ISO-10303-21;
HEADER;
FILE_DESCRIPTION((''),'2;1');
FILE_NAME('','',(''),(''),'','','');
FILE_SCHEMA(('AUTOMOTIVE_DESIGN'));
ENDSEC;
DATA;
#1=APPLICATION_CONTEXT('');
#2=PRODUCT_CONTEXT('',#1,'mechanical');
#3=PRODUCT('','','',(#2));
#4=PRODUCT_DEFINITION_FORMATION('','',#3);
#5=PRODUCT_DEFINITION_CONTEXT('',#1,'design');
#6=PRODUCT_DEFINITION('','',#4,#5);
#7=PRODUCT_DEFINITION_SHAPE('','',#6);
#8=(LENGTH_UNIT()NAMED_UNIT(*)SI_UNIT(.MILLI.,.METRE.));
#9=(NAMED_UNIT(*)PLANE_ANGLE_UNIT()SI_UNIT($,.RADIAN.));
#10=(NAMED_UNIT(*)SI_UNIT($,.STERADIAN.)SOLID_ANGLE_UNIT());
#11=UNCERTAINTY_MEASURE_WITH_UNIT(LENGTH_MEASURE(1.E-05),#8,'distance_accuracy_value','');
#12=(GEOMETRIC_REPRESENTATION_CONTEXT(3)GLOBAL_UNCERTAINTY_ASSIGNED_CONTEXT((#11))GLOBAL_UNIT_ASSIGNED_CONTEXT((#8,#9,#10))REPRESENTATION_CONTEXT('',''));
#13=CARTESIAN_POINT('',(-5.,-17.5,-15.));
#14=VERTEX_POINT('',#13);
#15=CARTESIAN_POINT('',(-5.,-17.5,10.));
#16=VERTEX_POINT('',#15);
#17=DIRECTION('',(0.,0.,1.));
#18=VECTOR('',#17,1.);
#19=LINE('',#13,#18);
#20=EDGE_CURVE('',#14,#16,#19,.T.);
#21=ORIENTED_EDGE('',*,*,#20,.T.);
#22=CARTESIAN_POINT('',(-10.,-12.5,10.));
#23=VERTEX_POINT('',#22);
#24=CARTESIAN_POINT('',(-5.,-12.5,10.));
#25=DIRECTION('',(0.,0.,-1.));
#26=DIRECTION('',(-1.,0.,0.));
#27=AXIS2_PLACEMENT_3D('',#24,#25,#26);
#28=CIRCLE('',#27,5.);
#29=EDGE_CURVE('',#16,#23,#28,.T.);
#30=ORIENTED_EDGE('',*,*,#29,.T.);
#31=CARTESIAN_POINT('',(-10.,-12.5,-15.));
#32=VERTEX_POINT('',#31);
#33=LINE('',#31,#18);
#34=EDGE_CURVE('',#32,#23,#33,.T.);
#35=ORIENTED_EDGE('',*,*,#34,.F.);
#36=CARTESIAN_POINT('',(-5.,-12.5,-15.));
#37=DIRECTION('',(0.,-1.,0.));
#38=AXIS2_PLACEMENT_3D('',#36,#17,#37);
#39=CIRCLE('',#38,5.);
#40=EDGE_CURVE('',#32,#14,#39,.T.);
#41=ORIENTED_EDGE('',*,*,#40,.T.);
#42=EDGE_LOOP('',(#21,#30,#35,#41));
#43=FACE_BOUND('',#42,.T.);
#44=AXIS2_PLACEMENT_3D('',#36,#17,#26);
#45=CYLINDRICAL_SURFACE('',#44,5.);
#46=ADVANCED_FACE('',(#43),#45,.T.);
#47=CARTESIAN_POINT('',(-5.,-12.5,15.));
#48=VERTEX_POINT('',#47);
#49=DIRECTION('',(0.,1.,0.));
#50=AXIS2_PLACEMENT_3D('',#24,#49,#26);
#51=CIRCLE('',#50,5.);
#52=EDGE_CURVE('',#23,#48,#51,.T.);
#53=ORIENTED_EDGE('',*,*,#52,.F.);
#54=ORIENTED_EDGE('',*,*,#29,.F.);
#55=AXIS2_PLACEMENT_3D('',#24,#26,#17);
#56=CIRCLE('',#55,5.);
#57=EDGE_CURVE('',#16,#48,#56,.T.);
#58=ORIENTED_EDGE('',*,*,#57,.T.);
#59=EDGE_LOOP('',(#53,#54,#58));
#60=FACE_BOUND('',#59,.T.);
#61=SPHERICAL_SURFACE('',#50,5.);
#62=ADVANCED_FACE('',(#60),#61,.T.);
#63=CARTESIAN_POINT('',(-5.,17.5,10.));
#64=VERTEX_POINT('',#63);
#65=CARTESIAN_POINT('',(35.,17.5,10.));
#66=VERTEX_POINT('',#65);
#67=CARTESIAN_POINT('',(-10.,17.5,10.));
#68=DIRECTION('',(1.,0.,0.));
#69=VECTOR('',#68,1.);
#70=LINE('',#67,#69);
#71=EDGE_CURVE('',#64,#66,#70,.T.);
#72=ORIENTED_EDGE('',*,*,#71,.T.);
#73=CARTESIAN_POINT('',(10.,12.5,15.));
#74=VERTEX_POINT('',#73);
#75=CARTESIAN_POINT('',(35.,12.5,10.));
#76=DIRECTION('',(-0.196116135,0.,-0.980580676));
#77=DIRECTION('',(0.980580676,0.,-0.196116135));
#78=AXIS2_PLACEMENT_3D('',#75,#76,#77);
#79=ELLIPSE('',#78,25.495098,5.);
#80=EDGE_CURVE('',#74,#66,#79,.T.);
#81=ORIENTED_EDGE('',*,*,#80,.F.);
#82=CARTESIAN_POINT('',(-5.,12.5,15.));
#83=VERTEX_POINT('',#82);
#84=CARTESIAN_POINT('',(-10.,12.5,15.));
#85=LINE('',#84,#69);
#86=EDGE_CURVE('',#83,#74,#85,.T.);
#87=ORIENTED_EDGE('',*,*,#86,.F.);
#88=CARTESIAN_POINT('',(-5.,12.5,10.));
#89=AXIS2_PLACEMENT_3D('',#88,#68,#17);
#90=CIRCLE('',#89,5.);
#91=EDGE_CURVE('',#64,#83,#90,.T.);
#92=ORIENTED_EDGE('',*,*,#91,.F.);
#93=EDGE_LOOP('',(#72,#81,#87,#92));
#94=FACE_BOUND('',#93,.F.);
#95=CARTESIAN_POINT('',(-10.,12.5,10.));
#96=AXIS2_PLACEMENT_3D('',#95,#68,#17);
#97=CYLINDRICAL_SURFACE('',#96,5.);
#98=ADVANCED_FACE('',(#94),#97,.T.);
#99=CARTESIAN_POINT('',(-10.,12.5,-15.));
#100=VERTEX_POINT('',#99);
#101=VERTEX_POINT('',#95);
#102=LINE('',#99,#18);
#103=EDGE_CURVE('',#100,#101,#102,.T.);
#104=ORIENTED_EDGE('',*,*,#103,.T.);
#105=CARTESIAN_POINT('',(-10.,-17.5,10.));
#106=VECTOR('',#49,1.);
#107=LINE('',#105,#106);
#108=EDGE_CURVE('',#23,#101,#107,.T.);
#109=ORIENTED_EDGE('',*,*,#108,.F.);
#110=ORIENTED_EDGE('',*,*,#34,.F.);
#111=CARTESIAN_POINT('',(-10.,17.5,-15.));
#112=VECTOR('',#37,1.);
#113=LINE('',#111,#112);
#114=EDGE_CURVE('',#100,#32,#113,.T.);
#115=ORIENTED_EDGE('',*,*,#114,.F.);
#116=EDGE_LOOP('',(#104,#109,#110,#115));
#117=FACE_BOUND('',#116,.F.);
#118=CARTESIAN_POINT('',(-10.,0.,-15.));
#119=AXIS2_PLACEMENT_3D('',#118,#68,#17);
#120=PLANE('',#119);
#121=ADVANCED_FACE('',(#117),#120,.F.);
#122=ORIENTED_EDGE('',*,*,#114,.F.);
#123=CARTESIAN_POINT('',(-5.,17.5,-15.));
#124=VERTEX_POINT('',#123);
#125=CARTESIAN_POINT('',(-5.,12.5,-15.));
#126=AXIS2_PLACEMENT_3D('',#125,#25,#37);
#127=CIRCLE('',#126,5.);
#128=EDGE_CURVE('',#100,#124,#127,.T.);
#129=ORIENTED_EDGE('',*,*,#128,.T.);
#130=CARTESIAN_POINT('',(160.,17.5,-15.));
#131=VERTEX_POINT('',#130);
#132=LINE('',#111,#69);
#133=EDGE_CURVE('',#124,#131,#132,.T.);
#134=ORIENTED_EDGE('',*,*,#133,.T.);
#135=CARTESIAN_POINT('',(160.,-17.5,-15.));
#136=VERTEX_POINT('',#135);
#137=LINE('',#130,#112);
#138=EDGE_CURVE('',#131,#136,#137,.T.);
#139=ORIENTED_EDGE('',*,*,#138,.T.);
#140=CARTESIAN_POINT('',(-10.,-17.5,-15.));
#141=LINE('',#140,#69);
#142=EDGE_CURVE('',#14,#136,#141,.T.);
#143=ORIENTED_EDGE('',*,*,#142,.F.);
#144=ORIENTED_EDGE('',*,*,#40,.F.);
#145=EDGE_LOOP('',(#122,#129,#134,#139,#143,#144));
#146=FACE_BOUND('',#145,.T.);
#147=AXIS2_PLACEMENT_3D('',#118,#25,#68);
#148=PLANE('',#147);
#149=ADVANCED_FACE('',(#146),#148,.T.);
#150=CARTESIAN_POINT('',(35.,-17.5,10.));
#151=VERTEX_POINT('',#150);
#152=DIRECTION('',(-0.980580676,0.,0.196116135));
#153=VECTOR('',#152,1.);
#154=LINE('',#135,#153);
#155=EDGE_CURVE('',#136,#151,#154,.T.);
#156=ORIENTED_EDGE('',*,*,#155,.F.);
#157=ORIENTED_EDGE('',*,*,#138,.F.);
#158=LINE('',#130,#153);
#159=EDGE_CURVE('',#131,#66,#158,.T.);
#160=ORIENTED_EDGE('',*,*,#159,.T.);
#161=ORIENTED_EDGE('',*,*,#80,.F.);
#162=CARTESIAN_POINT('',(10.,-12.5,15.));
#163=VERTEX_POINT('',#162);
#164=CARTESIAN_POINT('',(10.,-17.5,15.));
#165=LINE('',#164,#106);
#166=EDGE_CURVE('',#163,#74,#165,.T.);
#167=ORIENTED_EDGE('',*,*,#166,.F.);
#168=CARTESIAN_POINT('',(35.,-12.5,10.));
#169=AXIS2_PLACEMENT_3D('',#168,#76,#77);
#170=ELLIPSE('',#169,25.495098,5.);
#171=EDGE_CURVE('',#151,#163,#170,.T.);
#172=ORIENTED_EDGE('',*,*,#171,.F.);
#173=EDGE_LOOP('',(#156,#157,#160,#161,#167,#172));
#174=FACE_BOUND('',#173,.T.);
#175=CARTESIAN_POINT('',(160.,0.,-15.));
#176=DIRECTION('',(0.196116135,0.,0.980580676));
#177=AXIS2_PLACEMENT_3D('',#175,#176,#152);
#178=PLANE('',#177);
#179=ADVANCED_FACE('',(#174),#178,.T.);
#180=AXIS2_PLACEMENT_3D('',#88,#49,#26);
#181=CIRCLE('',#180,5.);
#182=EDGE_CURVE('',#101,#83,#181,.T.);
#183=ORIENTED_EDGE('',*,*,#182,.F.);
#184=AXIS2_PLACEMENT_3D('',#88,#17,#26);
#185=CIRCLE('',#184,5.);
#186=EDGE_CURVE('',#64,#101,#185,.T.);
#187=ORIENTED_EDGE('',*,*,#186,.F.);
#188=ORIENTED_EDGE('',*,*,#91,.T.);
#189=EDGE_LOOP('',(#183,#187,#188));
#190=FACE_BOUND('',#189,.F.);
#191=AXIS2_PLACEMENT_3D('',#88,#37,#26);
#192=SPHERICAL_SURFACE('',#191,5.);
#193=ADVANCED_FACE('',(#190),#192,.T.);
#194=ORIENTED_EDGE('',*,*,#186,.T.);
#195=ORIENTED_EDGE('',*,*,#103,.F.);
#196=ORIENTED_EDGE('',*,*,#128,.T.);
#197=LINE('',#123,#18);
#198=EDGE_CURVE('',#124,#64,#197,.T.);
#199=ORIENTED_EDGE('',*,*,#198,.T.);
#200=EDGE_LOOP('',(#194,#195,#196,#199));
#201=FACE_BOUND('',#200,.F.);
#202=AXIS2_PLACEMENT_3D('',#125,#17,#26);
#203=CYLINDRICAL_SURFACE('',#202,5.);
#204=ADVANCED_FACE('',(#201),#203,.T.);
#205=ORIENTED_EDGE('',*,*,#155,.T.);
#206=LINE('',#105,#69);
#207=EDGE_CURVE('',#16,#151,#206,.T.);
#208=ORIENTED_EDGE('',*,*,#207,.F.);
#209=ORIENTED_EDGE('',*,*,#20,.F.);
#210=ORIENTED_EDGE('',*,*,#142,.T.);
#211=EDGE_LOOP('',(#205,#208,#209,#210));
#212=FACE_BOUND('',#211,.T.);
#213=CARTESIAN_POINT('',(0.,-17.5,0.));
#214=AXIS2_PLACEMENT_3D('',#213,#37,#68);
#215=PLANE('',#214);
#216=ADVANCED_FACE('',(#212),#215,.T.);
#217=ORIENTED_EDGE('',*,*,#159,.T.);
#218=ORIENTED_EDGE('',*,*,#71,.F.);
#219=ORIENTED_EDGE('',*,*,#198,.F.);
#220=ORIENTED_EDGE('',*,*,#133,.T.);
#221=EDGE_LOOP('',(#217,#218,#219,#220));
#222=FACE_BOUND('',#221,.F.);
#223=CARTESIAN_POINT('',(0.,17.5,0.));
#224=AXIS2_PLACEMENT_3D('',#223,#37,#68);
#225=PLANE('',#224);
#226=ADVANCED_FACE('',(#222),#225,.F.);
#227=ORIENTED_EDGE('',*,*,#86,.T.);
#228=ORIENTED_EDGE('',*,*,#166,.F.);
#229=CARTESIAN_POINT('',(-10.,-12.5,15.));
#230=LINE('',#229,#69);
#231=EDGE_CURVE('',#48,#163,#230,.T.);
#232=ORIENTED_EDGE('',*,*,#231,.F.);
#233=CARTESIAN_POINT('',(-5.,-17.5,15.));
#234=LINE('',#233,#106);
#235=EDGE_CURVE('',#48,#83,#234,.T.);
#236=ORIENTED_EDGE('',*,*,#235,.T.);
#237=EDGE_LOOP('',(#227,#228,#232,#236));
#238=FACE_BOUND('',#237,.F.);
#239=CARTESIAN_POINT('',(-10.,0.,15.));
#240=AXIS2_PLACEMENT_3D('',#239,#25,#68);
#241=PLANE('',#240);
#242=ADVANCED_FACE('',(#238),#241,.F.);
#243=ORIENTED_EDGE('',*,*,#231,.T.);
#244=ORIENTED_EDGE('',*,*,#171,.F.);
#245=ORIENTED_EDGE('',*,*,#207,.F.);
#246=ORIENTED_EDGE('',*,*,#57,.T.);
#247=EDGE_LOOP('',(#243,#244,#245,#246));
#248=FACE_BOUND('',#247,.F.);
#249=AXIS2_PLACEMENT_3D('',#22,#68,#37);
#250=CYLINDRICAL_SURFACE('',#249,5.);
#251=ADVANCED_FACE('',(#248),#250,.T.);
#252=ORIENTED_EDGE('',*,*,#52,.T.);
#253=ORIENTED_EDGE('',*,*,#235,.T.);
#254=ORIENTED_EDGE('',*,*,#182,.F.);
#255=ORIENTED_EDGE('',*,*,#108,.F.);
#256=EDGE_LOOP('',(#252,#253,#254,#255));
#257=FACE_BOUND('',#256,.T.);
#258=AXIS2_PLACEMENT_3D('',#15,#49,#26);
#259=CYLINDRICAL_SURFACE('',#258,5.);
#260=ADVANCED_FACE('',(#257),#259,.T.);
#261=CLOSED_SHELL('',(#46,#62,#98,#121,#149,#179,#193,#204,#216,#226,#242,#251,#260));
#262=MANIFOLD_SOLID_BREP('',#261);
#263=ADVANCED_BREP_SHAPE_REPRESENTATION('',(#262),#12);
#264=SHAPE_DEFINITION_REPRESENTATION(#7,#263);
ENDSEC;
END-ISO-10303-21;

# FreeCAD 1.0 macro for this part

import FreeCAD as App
import Part
import Sketcher
from FreeCAD import Vector


def edges_at(feature, points):
    """Names of the edges that pass closest to the given points."""
    edges = feature.Shape.Edges
    near = lambda p: min(range(len(edges)), key=lambda i: edges[i].distToShape(Part.Vertex(*p))[0])
    return sorted({f"Edge{near(p) + 1}" for p in points})


def add_polygon(sketch, points):
    """Adds a closed chain of lines whose ends are joined by coincident constraints."""
    first, n = sketch.GeometryCount, len(points)
    for a, b in zip(points, points[1:] + points[:1]):
        sketch.addGeometry(Part.LineSegment(App.Vector(*a, 0), App.Vector(*b, 0)), False)
    for i in range(n):
        sketch.addConstraint(Sketcher.Constraint("Coincident", first + i, 2, first + (i + 1) % n, 1))

doc = App.newDocument("Part")
body = doc.addObject("PartDesign::Body", "Body")

# Sketch on XZ plane
sketch1 = doc.addObject("Sketcher::SketchObject", "Sketch")
body.addObject(sketch1)
sketch1.AttachmentSupport = (doc.XZ_Plane, [""])
sketch1.MapMode = "FlatFace"
add_polygon(sketch1, [(-10, 15), (-10, -15), (160, -15), (10, 15)])  # lines 0-3
sketch1.addConstraint([
    Sketcher.Constraint("Vertical", 0),
    Sketcher.Constraint("Horizontal", 1),
    Sketcher.Constraint("Horizontal", 3),
    Sketcher.Constraint("Symmetric", 0, 2, 2, 2, -1, 1),
    Sketcher.Constraint("DistanceX", 1, 1, 1, 2, 170.0),
    Sketcher.Constraint("DistanceX", 3, 2, 3, 1, 20.0),
    Sketcher.Constraint("DistanceY", 0, 2, 0, 1, 30.0),
])
pad1 = doc.addObject("PartDesign::Pad", "Pad")
body.addObject(pad1)
pad1.Profile = sketch1
pad1.Length = 35
pad1.Midplane = True
doc.recompute()

fillet = doc.addObject("PartDesign::Fillet", "Fillet")
body.addObject(fillet)
fillet.Base = (pad1, edges_at(pad1, [
    (-10, 0, 15),
    (-10, -17.5, 0),
    (-10, 17.5, 0),
    (0, -17.5, 15),
    (0, 17.5, 15),
]))
fillet.Radius = 5

doc.recompute()
